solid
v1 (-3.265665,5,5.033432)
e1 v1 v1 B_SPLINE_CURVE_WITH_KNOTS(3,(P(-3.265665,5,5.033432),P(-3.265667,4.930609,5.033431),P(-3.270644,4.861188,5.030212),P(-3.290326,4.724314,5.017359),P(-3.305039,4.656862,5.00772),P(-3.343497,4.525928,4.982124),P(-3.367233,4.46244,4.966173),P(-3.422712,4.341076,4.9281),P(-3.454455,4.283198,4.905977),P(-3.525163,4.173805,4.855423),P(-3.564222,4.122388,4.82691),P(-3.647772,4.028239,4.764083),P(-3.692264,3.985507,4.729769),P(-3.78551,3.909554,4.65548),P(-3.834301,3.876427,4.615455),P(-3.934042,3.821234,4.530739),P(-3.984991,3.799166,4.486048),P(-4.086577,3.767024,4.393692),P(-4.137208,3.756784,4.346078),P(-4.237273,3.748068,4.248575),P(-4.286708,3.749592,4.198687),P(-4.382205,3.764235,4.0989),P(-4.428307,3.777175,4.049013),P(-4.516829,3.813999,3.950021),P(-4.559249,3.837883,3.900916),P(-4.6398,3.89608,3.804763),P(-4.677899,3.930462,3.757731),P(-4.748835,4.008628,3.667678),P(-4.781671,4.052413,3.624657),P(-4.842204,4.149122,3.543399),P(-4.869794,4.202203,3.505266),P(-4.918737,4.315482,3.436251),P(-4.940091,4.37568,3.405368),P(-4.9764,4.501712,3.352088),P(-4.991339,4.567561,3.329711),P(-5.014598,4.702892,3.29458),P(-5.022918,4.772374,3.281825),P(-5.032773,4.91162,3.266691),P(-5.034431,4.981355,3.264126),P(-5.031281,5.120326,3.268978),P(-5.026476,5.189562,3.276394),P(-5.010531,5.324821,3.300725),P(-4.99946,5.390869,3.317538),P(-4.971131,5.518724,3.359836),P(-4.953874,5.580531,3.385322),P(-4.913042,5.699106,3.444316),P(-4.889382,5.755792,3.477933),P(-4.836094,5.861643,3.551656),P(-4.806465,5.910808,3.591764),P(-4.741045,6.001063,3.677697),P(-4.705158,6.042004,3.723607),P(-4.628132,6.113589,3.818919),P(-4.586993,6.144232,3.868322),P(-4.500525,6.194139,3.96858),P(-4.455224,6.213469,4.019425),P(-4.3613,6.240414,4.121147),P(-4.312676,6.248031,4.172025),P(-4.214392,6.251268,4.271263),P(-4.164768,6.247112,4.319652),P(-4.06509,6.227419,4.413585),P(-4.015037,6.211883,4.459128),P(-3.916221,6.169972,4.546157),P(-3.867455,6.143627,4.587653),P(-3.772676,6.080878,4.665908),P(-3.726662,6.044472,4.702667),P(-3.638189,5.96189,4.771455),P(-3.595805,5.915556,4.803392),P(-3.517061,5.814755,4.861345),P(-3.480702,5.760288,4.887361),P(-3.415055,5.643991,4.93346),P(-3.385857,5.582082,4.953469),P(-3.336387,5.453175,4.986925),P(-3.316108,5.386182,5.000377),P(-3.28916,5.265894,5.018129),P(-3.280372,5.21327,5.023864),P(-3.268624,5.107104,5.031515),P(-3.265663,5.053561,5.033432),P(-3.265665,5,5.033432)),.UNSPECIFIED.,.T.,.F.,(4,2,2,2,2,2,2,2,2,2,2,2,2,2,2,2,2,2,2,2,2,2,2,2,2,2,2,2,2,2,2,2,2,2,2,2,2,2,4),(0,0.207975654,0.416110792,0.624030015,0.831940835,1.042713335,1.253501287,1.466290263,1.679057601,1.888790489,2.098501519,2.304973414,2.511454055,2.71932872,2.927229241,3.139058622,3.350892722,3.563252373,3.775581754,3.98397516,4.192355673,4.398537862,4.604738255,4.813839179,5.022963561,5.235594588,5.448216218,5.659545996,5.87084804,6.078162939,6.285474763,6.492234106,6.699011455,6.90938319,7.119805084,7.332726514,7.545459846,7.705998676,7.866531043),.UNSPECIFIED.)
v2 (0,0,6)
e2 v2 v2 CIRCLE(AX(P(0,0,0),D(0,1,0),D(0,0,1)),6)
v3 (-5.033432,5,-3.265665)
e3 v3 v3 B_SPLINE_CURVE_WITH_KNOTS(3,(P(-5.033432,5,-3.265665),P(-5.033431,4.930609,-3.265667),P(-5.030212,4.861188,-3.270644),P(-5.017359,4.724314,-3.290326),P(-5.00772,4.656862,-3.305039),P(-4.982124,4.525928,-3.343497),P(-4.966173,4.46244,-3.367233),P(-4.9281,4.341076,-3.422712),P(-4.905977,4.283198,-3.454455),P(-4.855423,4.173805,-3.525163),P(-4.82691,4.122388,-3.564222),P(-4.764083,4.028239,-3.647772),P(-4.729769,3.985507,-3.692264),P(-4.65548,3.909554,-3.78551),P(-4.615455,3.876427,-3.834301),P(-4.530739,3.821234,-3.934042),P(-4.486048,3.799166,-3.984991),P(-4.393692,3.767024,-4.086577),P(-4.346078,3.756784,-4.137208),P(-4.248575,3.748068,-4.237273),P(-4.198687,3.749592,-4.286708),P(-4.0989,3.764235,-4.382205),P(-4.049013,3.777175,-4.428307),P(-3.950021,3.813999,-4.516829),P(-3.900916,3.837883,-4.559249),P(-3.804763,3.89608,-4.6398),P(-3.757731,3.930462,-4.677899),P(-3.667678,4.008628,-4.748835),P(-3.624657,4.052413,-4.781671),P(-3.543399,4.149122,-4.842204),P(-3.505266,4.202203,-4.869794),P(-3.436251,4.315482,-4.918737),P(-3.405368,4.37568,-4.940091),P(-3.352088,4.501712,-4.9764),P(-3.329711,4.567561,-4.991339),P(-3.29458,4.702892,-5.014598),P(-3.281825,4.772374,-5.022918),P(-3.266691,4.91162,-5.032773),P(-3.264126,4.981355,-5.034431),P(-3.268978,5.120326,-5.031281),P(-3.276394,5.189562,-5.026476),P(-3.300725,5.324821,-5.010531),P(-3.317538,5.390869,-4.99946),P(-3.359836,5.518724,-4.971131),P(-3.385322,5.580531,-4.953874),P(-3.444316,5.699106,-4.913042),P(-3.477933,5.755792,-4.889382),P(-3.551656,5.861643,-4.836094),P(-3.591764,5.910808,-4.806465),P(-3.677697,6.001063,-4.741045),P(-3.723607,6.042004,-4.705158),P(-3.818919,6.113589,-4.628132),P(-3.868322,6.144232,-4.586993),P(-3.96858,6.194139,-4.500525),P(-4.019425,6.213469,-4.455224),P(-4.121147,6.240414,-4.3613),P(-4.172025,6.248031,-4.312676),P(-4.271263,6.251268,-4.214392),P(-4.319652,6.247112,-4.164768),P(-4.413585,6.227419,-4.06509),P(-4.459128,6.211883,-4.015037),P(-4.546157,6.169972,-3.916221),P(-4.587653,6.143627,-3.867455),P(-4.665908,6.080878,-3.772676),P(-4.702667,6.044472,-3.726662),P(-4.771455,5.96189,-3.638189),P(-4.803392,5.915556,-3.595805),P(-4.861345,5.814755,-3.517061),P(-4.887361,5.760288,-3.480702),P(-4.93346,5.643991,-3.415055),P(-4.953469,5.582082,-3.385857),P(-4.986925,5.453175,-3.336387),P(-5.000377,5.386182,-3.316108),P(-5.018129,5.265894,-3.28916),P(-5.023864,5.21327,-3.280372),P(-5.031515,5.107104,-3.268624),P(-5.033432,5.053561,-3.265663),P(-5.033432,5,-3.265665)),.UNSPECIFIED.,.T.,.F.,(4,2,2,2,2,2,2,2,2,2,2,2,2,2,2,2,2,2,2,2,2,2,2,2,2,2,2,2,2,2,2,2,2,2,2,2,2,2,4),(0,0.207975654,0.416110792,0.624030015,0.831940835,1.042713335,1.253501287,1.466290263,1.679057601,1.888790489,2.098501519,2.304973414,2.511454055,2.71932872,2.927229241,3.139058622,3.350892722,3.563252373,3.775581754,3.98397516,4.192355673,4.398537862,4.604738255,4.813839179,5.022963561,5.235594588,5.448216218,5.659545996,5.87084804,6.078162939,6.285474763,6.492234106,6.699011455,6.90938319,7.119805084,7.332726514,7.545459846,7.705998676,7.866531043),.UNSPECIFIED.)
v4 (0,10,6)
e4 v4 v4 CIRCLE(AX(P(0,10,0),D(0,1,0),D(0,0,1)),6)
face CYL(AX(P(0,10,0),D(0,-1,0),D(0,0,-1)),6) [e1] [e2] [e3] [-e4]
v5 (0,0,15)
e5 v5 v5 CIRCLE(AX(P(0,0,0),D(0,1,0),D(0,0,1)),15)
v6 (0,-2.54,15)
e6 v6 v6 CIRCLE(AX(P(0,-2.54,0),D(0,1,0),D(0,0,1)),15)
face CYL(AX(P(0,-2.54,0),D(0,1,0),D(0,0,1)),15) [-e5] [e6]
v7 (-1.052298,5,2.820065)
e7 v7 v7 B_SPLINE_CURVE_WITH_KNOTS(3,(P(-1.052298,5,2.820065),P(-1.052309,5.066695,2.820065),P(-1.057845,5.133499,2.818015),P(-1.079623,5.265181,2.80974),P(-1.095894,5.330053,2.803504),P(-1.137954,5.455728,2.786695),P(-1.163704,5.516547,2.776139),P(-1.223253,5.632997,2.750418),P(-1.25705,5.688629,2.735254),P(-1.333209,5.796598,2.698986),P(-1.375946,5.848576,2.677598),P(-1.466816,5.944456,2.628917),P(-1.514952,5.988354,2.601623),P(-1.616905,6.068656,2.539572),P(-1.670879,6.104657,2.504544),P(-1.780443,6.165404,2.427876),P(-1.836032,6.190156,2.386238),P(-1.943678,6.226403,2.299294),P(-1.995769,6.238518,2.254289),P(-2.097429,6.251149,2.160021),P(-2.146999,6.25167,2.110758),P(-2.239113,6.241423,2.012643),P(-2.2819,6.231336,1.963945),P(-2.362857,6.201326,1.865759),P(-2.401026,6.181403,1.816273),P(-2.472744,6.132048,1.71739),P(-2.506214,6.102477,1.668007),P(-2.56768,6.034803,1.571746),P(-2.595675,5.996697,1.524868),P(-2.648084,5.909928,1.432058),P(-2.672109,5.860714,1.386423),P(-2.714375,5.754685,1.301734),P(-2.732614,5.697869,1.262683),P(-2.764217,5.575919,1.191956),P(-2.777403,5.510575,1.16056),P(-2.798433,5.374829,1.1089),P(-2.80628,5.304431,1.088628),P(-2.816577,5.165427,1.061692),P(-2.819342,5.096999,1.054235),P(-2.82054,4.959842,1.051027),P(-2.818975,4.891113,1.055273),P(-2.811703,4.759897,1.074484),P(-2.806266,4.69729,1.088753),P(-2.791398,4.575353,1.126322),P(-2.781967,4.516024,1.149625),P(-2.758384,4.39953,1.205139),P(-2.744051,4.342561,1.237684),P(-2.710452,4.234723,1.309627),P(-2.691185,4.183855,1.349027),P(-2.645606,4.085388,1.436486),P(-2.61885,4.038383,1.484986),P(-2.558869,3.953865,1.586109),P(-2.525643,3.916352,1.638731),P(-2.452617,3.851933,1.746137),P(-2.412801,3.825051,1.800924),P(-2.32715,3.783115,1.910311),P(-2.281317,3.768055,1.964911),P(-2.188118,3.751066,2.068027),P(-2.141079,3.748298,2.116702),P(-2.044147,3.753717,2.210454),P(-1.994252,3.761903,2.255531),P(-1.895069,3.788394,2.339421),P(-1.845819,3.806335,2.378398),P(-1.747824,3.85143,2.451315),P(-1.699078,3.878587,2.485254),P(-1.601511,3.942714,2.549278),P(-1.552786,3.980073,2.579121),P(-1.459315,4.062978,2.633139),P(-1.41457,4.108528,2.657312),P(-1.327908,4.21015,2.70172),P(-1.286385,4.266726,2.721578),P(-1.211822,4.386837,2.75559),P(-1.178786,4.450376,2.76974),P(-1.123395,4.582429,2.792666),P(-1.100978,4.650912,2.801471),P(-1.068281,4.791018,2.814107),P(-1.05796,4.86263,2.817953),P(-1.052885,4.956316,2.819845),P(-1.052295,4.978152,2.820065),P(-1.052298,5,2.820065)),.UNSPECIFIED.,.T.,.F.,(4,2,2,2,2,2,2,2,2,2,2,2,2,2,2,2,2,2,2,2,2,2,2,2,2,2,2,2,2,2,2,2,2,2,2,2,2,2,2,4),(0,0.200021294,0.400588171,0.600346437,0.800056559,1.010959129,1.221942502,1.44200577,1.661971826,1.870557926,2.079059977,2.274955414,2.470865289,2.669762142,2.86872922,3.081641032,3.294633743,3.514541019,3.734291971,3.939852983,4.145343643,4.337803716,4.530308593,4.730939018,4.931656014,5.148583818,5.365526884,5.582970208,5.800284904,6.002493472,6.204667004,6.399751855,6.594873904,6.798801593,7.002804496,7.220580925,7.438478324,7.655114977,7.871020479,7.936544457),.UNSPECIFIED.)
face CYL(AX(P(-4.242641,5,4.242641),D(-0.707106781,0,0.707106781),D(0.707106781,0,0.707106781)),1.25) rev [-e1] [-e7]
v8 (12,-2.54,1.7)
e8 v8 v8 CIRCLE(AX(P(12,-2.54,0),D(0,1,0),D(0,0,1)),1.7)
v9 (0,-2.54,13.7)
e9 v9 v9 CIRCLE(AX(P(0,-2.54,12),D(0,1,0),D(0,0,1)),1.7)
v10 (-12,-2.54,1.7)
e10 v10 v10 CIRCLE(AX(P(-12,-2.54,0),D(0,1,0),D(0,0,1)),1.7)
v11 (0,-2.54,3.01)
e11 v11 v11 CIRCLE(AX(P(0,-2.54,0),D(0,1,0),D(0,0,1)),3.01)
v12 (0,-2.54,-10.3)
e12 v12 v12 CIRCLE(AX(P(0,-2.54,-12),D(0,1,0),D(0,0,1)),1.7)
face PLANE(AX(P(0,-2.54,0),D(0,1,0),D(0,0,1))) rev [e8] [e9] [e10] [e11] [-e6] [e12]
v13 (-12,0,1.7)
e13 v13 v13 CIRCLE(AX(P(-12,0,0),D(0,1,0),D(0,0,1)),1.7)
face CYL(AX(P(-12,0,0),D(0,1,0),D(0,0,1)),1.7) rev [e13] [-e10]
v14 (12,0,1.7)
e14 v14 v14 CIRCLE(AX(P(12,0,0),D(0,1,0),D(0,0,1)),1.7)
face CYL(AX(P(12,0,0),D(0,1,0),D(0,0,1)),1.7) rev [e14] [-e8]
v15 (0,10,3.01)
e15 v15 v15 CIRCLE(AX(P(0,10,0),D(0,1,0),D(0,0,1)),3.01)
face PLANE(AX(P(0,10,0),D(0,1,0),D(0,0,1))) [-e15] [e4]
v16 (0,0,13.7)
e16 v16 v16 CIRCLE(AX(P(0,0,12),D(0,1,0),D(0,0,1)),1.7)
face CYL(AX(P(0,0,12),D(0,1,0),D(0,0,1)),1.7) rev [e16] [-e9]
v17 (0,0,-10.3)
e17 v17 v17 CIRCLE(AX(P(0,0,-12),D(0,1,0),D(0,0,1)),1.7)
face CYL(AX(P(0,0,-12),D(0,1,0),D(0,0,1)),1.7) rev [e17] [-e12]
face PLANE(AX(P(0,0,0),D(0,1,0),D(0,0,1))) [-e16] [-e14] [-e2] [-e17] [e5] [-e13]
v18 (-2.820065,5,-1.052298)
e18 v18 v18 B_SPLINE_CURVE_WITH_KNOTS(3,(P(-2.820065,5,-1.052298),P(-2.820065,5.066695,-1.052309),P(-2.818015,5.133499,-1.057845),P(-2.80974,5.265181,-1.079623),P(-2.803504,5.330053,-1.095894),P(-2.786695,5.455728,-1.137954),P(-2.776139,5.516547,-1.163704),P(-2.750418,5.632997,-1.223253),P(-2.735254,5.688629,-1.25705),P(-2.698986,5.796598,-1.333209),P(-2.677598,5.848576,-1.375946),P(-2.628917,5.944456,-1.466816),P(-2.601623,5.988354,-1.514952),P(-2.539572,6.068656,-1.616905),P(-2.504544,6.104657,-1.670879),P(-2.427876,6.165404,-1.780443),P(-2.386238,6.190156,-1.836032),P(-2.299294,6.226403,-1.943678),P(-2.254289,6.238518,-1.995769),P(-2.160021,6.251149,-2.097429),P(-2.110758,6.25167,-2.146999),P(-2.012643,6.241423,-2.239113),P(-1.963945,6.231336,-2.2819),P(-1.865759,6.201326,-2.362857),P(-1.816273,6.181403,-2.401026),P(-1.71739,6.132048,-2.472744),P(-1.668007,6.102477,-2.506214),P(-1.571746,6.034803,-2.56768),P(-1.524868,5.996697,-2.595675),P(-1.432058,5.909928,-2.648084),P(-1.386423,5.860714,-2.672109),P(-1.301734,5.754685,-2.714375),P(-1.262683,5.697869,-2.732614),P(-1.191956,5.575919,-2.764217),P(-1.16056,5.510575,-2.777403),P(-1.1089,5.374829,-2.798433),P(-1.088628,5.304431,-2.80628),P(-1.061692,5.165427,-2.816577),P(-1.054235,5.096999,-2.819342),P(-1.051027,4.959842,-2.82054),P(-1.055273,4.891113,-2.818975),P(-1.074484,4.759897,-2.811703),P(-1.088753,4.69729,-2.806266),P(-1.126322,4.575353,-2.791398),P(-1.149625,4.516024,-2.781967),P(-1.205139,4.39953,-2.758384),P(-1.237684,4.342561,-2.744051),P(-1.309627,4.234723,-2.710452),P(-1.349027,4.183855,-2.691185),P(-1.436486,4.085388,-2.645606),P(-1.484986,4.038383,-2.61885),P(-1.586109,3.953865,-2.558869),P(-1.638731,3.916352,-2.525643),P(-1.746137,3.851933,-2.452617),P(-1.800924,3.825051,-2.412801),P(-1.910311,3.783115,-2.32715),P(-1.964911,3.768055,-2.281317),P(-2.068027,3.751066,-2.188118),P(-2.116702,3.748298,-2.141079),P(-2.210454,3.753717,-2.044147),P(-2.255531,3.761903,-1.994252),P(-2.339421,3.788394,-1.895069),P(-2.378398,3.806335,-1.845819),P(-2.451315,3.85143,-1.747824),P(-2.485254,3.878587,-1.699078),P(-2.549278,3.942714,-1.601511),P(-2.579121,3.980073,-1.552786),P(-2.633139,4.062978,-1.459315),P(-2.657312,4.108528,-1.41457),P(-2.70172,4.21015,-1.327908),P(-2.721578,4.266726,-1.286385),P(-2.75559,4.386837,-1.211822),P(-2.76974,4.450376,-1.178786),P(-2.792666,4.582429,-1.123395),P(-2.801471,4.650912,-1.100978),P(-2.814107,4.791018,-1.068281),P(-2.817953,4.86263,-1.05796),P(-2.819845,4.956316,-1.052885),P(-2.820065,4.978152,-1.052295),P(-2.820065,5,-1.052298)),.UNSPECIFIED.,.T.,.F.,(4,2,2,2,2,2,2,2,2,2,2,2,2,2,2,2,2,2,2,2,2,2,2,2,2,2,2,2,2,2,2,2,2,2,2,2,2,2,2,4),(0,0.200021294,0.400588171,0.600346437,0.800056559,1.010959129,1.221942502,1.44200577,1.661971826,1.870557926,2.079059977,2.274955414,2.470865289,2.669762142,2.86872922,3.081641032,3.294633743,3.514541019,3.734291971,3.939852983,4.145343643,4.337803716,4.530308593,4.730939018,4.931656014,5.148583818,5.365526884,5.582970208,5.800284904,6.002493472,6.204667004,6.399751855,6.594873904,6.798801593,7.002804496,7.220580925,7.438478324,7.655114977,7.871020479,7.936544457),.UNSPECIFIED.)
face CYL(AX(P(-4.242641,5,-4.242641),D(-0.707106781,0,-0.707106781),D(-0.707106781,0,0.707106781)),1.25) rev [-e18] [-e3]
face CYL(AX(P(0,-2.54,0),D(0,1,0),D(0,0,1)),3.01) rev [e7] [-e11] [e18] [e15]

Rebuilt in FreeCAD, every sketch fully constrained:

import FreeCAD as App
import Part
import Sketcher
Q = App.Units.Quantity

doc = App.newDocument("Part")
body = doc.addObject("PartDesign::Body", "Body")

sketch1 = body.newObject("Sketcher::SketchObject", "Sketch")
sketch1.AttachmentSupport = (doc.getObject("XZ_Plane"), [""])
sketch1.MapMode = "FlatFace"
sketch1.addGeometry(Part.Circle(App.Vector(0, 0, 0), App.Vector(0, 0, 1), 15), False)
sketch1.addGeometry(Part.Circle(App.Vector(0, 0, 0), App.Vector(0, 0, 1), 3.01), False)
sketch1.addConstraint(Sketcher.Constraint("Coincident", 0, 3, -1, 1))
sketch1.addConstraint(Sketcher.Constraint("Coincident", 1, 3, -1, 1))
sketch1.addConstraint(Sketcher.Constraint("Diameter", 0, Q("30 mm")))
sketch1.addConstraint(Sketcher.Constraint("Diameter", 1, Q("6.02 mm")))
pad1 = body.newObject("PartDesign::Pad", "Pad")
pad1.Profile = sketch1
pad1.Length = 2.54

sketch2 = body.newObject("Sketcher::SketchObject", "Sketch001")
sketch2.AttachmentSupport = (doc.getObject("XZ_Plane"), [""])
sketch2.MapMode = "FlatFace"
sketch2.AttachmentOffset = App.Placement(App.Vector(0, 0, -10), App.Rotation())
sketch2.addGeometry(Part.Circle(App.Vector(0, 0, 0), App.Vector(0, 0, 1), 6), False)
sketch2.addGeometry(Part.Circle(App.Vector(0, 0, 0), App.Vector(0, 0, 1), 3.01), False)
sketch2.addConstraint(Sketcher.Constraint("Coincident", 0, 3, -1, 1))
sketch2.addConstraint(Sketcher.Constraint("Coincident", 1, 3, -1, 1))
sketch2.addConstraint(Sketcher.Constraint("Diameter", 0, Q("12 mm")))
sketch2.addConstraint(Sketcher.Constraint("Diameter", 1, Q("6.02 mm")))
pad2 = body.newObject("PartDesign::Pad", "Pad001")
pad2.Profile = sketch2
pad2.Length = 10

sketch3 = body.newObject("Sketcher::SketchObject", "Sketch002")
sketch3.AttachmentSupport = (doc.getObject("XZ_Plane"), [""])
sketch3.MapMode = "FlatFace"
sketch3.addGeometry(Part.Circle(App.Vector(0, -12, 0), App.Vector(0, 0, 1), 1.7), False)
sketch3.addGeometry(Part.Circle(App.Vector(12, 0, 0), App.Vector(0, 0, 1), 1.7), False)
sketch3.addGeometry(Part.Circle(App.Vector(-12, 0, 0), App.Vector(0, 0, 1), 1.7), False)
sketch3.addGeometry(Part.Circle(App.Vector(0, 12, 0), App.Vector(0, 0, 1), 1.7), False)
sketch3.addConstraint(Sketcher.Constraint("Equal", 0, 1))
sketch3.addConstraint(Sketcher.Constraint("Equal", 1, 2))
sketch3.addConstraint(Sketcher.Constraint("Equal", 2, 3))
sketch3.addConstraint(Sketcher.Constraint("Symmetric", 1, 3, 2, 3, -1, 1))
sketch3.addConstraint(Sketcher.Constraint("Symmetric", 0, 3, 3, 3, -1, 1))
sketch3.addConstraint(Sketcher.Constraint("PointOnObject", 0, 3, -2))
sketch3.addConstraint(Sketcher.Constraint("PointOnObject", 1, 3, -1))
sketch3.addConstraint(Sketcher.Constraint("Diameter", 0, Q("3.4 mm")))
sketch3.addConstraint(Sketcher.Constraint("DistanceY", 0, 3, -1, 1, Q("12 mm")))
sketch3.addConstraint(Sketcher.Constraint("DistanceX", -1, 1, 1, 3, Q("12 mm")))
doc.recompute()
hole = body.newObject("PartDesign::Hole", "Hole")
hole.Profile = sketch3
hole.ThreadType = "None"
hole.Diameter = 3.4
hole.DepthType = "ThroughAll"
hole.Reversed = True

sketch4 = body.newObject("Sketcher::SketchObject", "Sketch003")
sketch4.Placement = App.Placement(App.Vector(-4.242641, 0, -4.242641), App.Rotation(App.Vector(0, -1, 0), App.Vector(-0.707106781, 0, 0.707106781), App.Vector(-0.707106781, 0, -0.707106781), "ZXY"))
sketch4.addGeometry(Part.Circle(App.Vector(-5, 0, 0), App.Vector(0, 0, 1), 1.25), False)
sketch4.addConstraint(Sketcher.Constraint("PointOnObject", 0, 3, -1))
sketch4.addConstraint(Sketcher.Constraint("Diameter", 0, Q("2.5 mm")))
sketch4.addConstraint(Sketcher.Constraint("DistanceX", 0, 3, -1, 1, Q("5 mm")))
pocket1 = body.newObject("PartDesign::Pocket", "Pocket")
pocket1.Profile = sketch4
pocket1.Type = "UpToFirst"

sketch5 = body.newObject("Sketcher::SketchObject", "Sketch004")
sketch5.Placement = App.Placement(App.Vector(-4.242641, 0, 4.242641), App.Rotation(App.Vector(0, -1, 0), App.Vector(0.707106781, 0, 0.707106781), App.Vector(-0.707106781, 0, 0.707106781), "ZXY"))
sketch5.addGeometry(Part.Circle(App.Vector(-5, 0, 0), App.Vector(0, 0, 1), 1.25), False)
sketch5.addConstraint(Sketcher.Constraint("PointOnObject", 0, 3, -1))
sketch5.addConstraint(Sketcher.Constraint("Diameter", 0, Q("2.5 mm")))
sketch5.addConstraint(Sketcher.Constraint("DistanceX", 0, 3, -1, 1, Q("5 mm")))
pocket2 = body.newObject("PartDesign::Pocket", "Pocket001")
pocket2.Profile = sketch5
pocket2.Type = "UpToFirst"

doc.recompute()
